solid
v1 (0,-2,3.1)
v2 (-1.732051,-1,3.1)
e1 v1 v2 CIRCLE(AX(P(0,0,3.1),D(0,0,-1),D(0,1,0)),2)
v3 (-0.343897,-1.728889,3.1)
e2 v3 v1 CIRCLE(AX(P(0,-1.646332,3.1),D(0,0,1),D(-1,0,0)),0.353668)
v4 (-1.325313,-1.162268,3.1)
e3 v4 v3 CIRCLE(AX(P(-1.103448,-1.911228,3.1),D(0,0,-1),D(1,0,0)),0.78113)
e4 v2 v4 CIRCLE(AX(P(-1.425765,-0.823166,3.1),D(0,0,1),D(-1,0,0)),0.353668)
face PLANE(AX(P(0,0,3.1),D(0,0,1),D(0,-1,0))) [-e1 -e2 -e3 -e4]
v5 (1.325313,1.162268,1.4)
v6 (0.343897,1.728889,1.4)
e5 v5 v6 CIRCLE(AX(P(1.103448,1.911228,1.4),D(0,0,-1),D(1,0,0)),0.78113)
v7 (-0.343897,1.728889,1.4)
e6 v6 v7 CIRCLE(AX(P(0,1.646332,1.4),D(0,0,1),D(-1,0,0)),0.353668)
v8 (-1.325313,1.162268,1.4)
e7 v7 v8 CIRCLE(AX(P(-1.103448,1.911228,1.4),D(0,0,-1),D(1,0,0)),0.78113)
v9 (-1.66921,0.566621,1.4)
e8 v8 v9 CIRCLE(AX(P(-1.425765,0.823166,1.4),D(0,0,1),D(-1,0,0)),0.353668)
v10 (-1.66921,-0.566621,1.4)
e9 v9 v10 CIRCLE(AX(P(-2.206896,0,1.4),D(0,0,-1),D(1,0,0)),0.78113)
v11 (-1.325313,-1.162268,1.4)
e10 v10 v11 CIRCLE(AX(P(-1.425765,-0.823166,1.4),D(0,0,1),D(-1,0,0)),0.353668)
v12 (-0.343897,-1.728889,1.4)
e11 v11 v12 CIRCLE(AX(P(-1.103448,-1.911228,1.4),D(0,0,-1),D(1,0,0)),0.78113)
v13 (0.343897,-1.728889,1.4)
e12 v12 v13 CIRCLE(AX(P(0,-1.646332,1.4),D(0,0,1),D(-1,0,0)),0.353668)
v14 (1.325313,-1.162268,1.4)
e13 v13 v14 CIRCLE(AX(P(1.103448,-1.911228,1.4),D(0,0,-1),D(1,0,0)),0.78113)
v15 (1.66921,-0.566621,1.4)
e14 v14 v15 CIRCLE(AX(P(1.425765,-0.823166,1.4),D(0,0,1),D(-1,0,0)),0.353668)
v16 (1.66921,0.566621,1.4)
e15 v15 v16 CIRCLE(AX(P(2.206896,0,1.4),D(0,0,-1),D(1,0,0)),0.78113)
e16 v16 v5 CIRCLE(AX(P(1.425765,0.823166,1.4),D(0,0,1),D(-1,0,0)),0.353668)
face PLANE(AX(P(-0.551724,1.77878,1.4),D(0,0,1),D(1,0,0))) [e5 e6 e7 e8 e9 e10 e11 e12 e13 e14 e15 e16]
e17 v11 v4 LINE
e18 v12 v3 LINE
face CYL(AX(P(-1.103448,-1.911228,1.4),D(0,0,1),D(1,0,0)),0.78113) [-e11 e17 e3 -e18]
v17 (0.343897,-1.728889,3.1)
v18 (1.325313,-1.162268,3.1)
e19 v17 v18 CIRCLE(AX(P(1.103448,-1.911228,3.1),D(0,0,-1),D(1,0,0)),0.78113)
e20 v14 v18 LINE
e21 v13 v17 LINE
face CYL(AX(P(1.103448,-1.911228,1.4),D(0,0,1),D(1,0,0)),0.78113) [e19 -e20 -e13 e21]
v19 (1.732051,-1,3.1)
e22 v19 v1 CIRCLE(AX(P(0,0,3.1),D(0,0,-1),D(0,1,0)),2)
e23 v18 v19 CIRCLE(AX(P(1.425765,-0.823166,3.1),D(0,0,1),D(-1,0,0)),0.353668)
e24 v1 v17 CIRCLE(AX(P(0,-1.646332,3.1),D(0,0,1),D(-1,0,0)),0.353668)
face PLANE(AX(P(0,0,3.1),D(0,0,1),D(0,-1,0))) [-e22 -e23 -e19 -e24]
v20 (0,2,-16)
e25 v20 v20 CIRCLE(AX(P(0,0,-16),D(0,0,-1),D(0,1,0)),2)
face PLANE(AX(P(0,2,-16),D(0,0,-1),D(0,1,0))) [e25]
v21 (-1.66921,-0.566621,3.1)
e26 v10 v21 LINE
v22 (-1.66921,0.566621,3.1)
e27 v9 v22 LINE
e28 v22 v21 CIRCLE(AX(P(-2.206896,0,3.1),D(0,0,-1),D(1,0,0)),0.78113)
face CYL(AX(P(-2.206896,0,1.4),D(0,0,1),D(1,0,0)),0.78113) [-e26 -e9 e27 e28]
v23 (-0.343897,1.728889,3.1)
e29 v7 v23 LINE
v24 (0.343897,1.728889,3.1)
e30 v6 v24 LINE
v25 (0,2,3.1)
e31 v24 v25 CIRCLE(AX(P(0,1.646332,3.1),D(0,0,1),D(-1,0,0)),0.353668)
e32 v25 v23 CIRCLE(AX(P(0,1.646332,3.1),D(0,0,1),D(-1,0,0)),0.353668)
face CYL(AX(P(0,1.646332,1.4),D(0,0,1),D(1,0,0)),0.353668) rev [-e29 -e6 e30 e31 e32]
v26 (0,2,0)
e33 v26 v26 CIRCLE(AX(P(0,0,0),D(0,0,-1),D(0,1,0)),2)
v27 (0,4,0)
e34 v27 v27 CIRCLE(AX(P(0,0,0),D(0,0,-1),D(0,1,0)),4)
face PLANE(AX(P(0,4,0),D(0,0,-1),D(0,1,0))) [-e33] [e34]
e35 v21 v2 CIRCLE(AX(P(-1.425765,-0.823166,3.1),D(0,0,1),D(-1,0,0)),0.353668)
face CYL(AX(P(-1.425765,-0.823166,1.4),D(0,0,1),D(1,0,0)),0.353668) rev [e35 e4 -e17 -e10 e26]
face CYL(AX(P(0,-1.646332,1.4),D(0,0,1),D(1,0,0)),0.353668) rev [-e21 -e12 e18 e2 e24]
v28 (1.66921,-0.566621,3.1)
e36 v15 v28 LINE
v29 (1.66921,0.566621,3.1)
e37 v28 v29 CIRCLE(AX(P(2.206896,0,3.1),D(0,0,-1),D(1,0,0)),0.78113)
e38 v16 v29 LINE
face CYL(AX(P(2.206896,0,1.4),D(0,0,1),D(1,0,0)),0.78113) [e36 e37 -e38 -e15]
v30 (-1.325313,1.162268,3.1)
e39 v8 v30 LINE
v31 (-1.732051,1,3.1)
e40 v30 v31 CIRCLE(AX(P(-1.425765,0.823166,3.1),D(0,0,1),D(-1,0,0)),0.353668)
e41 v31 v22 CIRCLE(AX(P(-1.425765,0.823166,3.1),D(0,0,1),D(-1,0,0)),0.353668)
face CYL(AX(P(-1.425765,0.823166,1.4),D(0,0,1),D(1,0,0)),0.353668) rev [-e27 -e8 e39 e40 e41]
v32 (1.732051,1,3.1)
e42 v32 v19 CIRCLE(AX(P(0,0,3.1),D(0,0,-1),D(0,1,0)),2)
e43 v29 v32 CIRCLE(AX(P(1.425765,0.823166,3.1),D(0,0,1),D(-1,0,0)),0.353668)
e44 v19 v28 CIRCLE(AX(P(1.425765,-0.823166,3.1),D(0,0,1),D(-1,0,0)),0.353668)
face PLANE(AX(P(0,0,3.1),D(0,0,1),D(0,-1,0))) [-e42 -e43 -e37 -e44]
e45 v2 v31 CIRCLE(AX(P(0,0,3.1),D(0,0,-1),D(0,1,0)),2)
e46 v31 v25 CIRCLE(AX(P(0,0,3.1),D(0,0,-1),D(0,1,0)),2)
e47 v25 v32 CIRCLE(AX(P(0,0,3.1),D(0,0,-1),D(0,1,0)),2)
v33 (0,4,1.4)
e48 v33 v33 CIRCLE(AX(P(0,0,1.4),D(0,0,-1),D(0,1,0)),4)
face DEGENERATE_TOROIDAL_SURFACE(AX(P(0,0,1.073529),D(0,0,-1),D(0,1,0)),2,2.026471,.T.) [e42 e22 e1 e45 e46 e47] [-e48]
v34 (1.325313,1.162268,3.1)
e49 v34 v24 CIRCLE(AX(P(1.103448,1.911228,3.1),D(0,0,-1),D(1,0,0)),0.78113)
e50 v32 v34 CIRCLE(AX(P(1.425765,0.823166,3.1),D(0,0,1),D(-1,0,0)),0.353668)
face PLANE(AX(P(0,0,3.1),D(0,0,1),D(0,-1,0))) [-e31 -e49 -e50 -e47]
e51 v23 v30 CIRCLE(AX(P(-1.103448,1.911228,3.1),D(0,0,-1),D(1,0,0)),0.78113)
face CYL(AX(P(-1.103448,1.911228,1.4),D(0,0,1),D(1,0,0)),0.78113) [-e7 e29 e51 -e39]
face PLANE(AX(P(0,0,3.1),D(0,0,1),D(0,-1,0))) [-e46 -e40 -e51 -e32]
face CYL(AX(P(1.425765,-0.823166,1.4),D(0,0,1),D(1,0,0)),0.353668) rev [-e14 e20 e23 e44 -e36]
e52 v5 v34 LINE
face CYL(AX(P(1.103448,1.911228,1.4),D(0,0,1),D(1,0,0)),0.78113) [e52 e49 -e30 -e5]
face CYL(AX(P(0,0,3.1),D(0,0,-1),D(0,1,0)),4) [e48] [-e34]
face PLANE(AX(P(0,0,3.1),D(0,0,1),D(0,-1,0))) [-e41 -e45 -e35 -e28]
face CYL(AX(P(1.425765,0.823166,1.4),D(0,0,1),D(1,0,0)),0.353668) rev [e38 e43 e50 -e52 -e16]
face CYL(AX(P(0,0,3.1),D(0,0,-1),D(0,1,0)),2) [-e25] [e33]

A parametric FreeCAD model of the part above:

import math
import FreeCAD as App
import Part
import Sketcher
from FreeCAD import Vector

doc = App.newDocument("Part")
body = doc.addObject("PartDesign::Body", "Body")

# Sketch on YZ plane
sketch1 = body.newObject("Sketcher::SketchObject", "Sketch")
sketch1.AttachmentSupport = (doc.getObject("YZ_Plane"), [""])
sketch1.MapMode = "FlatFace"
sketch1.addGeometry(Part.LineSegment(Vector(2, 3.1, 0), Vector(0, 3.1, 0)), False)
sketch1.addGeometry(Part.LineSegment(Vector(0, 3.1, 0), Vector(0, -16, 0)), False)
sketch1.addGeometry(Part.LineSegment(Vector(0, -16, 0), Vector(2, -16, 0)), False)
sketch1.addGeometry(Part.LineSegment(Vector(2, -16, 0), Vector(2, 0, 0)), False)
sketch1.addGeometry(Part.LineSegment(Vector(2, 0, 0), Vector(4, 0, 0)), False)
sketch1.addGeometry(Part.LineSegment(Vector(4, 0, 0), Vector(4, 1.4, 0)), False)
sketch1.addGeometry(Part.ArcOfCircle(Part.Circle(Vector(2, 1.1, 0), Vector(0, 0, 1), 2), math.radians(9), math.radians(90)), False)
sketch1.addConstraint(Sketcher.Constraint("Coincident", 0, 2, 1, 1))
sketch1.addConstraint(Sketcher.Constraint("Coincident", 1, 2, 2, 1))
sketch1.addConstraint(Sketcher.Constraint("Coincident", 2, 2, 3, 1))
sketch1.addConstraint(Sketcher.Constraint("Coincident", 3, 2, 4, 1))
sketch1.addConstraint(Sketcher.Constraint("Coincident", 4, 2, 5, 1))
sketch1.addConstraint(Sketcher.Constraint("Coincident", 5, 2, 6, 1))
sketch1.addConstraint(Sketcher.Constraint("Tangent", 6, 2, 0, 1))
sketch1.addConstraint(Sketcher.Constraint("Horizontal", 0))
sketch1.addConstraint(Sketcher.Constraint("Vertical", 1))
sketch1.addConstraint(Sketcher.Constraint("Horizontal", 2))
sketch1.addConstraint(Sketcher.Constraint("Vertical", 3))
sketch1.addConstraint(Sketcher.Constraint("Horizontal", 4))
sketch1.addConstraint(Sketcher.Constraint("Vertical", 5))
sketch1.addConstraint(Sketcher.Constraint("PointOnObject", 0, 2, -2))
sketch1.addConstraint(Sketcher.Constraint("PointOnObject", 3, 2, -1))
sketch1.addConstraint(Sketcher.Constraint("Vertical", 6, 3, 2, 2))
sketch1.addConstraint(Sketcher.Constraint("Equal", 2, 4))
sketch1.addConstraint(Sketcher.Constraint("DistanceX", 0, 2, 0, 1, 2.0))
sketch1.addConstraint(Sketcher.Constraint("DistanceY", 3, 1, 3, 2, 16.0))
sketch1.addConstraint(Sketcher.Constraint("DistanceY", 1, 2, 1, 1, 19.1))
sketch1.addConstraint(Sketcher.Constraint("DistanceY", 5, 1, 5, 2, 1.4))
revolution = body.newObject("PartDesign::Revolution", "Revolution")
revolution.Profile = sketch1
revolution.ReferenceAxis = (sketch1, ["V_Axis"])
revolution.Angle = 360

# Sketch on XY plane
sketch2 = body.newObject("Sketcher::SketchObject", "Sketch001")
sketch2.AttachmentSupport = (doc.getObject("XY_Plane"), [""])
sketch2.MapMode = "FlatFace"
sketch2.AttachmentOffset = App.Placement(Vector(0, 0, 3.1), App.Rotation())
sketch2.addGeometry(Part.ArcOfCircle(Part.Circle(Vector(0, 1.65, 0), Vector(0, 0, 1), 0.35), math.radians(13), math.radians(167)), False)
sketch2.addGeometry(Part.ArcOfCircle(Part.Circle(Vector(-1.1, 1.91, 0), Vector(0, 0, 1), 0.78), math.radians(-107), math.radians(-13)), False)
sketch2.addGeometry(Part.ArcOfCircle(Part.Circle(Vector(-1.43, 0.82, 0), Vector(0, 0, 1), 0.35), math.radians(73), math.radians(227)), False)
sketch2.addGeometry(Part.ArcOfCircle(Part.Circle(Vector(-2.21, 0, 0), Vector(0, 0, 1), 0.78), math.radians(-47), math.radians(47)), False)
sketch2.addGeometry(Part.ArcOfCircle(Part.Circle(Vector(-1.43, -0.82, 0), Vector(0, 0, 1), 0.35), math.radians(133), math.radians(287)), False)
sketch2.addGeometry(Part.ArcOfCircle(Part.Circle(Vector(-1.1, -1.91, 0), Vector(0, 0, 1), 0.78), math.radians(13), math.radians(107)), False)
sketch2.addGeometry(Part.ArcOfCircle(Part.Circle(Vector(0, -1.65, 0), Vector(0, 0, 1), 0.35), math.radians(-167), math.radians(-13)), False)
sketch2.addGeometry(Part.ArcOfCircle(Part.Circle(Vector(1.1, -1.91, 0), Vector(0, 0, 1), 0.78), math.radians(73), math.radians(167)), False)
sketch2.addGeometry(Part.ArcOfCircle(Part.Circle(Vector(1.43, -0.82, 0), Vector(0, 0, 1), 0.35), math.radians(-107), math.radians(47)), False)
sketch2.addGeometry(Part.ArcOfCircle(Part.Circle(Vector(2.21, 0, 0), Vector(0, 0, 1), 0.78), math.radians(133), math.radians(227)), False)
sketch2.addGeometry(Part.ArcOfCircle(Part.Circle(Vector(1.43, 0.82, 0), Vector(0, 0, 1), 0.35), math.radians(-47), math.radians(107)), False)
sketch2.addGeometry(Part.ArcOfCircle(Part.Circle(Vector(1.1, 1.91, 0), Vector(0, 0, 1), 0.78), math.radians(-167), math.radians(-73)), False)
sketch2.addConstraint(Sketcher.Constraint("Tangent", 0, 2, 1, 2))
sketch2.addConstraint(Sketcher.Constraint("Tangent", 1, 1, 2, 1))
sketch2.addConstraint(Sketcher.Constraint("Tangent", 2, 2, 3, 2))
sketch2.addConstraint(Sketcher.Constraint("Tangent", 3, 1, 4, 1))
sketch2.addConstraint(Sketcher.Constraint("Tangent", 4, 2, 5, 2))
sketch2.addConstraint(Sketcher.Constraint("Tangent", 5, 1, 6, 1))
sketch2.addConstraint(Sketcher.Constraint("Tangent", 6, 2, 7, 2))
sketch2.addConstraint(Sketcher.Constraint("Tangent", 7, 1, 8, 1))
sketch2.addConstraint(Sketcher.Constraint("Tangent", 8, 2, 9, 2))
sketch2.addConstraint(Sketcher.Constraint("Tangent", 9, 1, 10, 1))
sketch2.addConstraint(Sketcher.Constraint("Tangent", 10, 2, 11, 2))
sketch2.addConstraint(Sketcher.Constraint("Tangent", 11, 1, 0, 1))
sketch2.addConstraint(Sketcher.Constraint("Equal", 0, 2))
sketch2.addConstraint(Sketcher.Constraint("Equal", 1, 3))
sketch2.addConstraint(Sketcher.Constraint("Equal", 2, 4))
sketch2.addConstraint(Sketcher.Constraint("Equal", 3, 5))
sketch2.addConstraint(Sketcher.Constraint("Equal", 4, 6))
sketch2.addConstraint(Sketcher.Constraint("Equal", 5, 7))
sketch2.addConstraint(Sketcher.Constraint("Equal", 6, 8))
sketch2.addConstraint(Sketcher.Constraint("Equal", 7, 9))
sketch2.addConstraint(Sketcher.Constraint("Equal", 8, 10))
sketch2.addConstraint(Sketcher.Constraint("Equal", 9, 11))
sketch2.addConstraint(Sketcher.Constraint("Symmetric", 0, 3, 6, 3, -1, 1))
sketch2.addConstraint(Sketcher.Constraint("Symmetric", 2, 3, 8, 3, -1, 1))
sketch2.addConstraint(Sketcher.Constraint("Symmetric", 4, 3, 10, 3, -1, 1))
sketch2.addConstraint(Sketcher.Constraint("Symmetric", 5, 3, 7, 3, -2))
sketch2.addConstraint(Sketcher.Constraint("PointOnObject", 3, 3, -1))
sketch2.addConstraint(Sketcher.Constraint("Radius", 1, 0.78113))
sketch2.addConstraint(Sketcher.Constraint("Radius", 0, 0.353668))
sketch2.addConstraint(Sketcher.Constraint("DistanceY", 4, 3, 0, 3, 2.469498))
sketch2.addConstraint(Sketcher.Constraint("DistanceY", -1, 1, 0, 2, 1.728889))
sketch2.addConstraint(Sketcher.Constraint("DistanceY", -1, 1, 1, 1, 1.162268))
pocket1 = body.newObject("PartDesign::Pocket", "Pocket")
pocket1.Profile = sketch2
pocket1.Length = 1.7

doc.recompute()
